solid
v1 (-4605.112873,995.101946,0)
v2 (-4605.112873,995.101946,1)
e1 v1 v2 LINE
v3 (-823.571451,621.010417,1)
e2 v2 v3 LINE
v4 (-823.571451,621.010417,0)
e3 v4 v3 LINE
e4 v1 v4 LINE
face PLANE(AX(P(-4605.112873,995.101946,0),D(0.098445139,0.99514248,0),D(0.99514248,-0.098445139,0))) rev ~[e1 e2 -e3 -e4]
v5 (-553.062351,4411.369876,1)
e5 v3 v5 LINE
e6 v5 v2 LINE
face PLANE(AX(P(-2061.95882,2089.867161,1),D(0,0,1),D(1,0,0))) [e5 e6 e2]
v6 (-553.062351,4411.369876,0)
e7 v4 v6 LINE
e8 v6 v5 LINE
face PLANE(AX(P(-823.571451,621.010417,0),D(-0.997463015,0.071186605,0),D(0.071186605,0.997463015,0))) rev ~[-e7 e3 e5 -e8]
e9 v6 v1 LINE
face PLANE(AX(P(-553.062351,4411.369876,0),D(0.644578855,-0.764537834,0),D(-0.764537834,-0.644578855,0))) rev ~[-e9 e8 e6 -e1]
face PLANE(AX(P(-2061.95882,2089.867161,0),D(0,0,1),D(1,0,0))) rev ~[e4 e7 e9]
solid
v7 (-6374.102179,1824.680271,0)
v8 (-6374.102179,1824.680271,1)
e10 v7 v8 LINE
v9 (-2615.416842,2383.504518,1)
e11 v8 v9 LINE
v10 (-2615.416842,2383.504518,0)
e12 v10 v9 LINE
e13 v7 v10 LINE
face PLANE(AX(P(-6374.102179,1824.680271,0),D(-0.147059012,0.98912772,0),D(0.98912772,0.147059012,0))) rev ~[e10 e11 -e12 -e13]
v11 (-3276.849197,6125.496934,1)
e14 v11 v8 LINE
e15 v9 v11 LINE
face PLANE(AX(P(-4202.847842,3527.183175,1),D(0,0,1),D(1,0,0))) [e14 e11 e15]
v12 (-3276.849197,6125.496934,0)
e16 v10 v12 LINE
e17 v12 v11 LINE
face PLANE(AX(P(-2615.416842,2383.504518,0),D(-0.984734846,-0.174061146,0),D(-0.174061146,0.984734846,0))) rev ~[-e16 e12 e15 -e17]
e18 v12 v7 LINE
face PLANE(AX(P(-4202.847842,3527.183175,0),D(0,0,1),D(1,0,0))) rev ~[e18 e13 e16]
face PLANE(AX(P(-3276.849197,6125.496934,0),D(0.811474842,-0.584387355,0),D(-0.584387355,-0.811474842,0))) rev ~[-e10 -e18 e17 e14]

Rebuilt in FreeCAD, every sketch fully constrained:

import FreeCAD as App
import Part
import Sketcher

doc = App.newDocument("Part")
body = doc.addObject("PartDesign::Body", "Body")

# Sketch on XY plane
sketch1 = body.newObject("Sketcher::SketchObject", "Sketch")
sketch1.AttachmentSupport = (doc.getObject("XY_Plane"), [""])
sketch1.MapMode = "FlatFace"
sketch1.addGeometry([
    Part.LineSegment(App.Vector(-3277, 6125, 0), App.Vector(-6374, 1825, 0)),
    Part.LineSegment(App.Vector(-6374, 1825, 0), App.Vector(-2615, 2384, 0)),
    Part.LineSegment(App.Vector(-2615, 2384, 0), App.Vector(-3277, 6125, 0)),
], False)
sketch1.addConstraint([
    Sketcher.Constraint("Coincident", 0, 2, 1, 1),
    Sketcher.Constraint("Coincident", 1, 2, 2, 1),
    Sketcher.Constraint("Coincident", 2, 2, 0, 1),
    Sketcher.Constraint("Equal", 1, 2),
    Sketcher.Constraint("Distance", 0, 5300.0),
    Sketcher.Constraint("Distance", 1, 3800.0),
    Sketcher.Constraint("DistanceX", 0, 2, -1, 1, 6374.102179),
    Sketcher.Constraint("DistanceY", -1, 1, 0, 2, 1824.680271),
    Sketcher.Constraint("DistanceX", 1, 2, -1, 1, 2615.416842),
])
pad1 = body.newObject("PartDesign::Pad", "Pad")
pad1.Profile = sketch1
pad1.Length = 1
body2 = doc.addObject("PartDesign::Body", "Body001")

# Sketch on XY plane
sketch2 = body2.newObject("Sketcher::SketchObject", "Sketch001")
sketch2.AttachmentSupport = (doc.getObject("XY_Plane001"), [""])
sketch2.MapMode = "FlatFace"
sketch2.addGeometry([
    Part.LineSegment(App.Vector(-553, 4411, 0), App.Vector(-4605, 995, 0)),
    Part.LineSegment(App.Vector(-4605, 995, 0), App.Vector(-824, 621, 0)),
    Part.LineSegment(App.Vector(-824, 621, 0), App.Vector(-553, 4411, 0)),
], False)
sketch2.addConstraint([
    Sketcher.Constraint("Coincident", 0, 2, 1, 1),
    Sketcher.Constraint("Coincident", 1, 2, 2, 1),
    Sketcher.Constraint("Coincident", 2, 2, 0, 1),
    Sketcher.Constraint("Equal", 1, 2),
    Sketcher.Constraint("Distance", 0, 5300.0),
    Sketcher.Constraint("Distance", 1, 3800.0),
    Sketcher.Constraint("DistanceX", 1, 2, 2, 2, 270.5091),
    Sketcher.Constraint("DistanceX", 1, 2, -1, 1, 823.571451),
    Sketcher.Constraint("DistanceY", -1, 1, 0, 2, 995.101946),
])
pad2 = body2.newObject("PartDesign::Pad", "Pad001")
pad2.Profile = sketch2
pad2.Length = 1

doc.recompute()
